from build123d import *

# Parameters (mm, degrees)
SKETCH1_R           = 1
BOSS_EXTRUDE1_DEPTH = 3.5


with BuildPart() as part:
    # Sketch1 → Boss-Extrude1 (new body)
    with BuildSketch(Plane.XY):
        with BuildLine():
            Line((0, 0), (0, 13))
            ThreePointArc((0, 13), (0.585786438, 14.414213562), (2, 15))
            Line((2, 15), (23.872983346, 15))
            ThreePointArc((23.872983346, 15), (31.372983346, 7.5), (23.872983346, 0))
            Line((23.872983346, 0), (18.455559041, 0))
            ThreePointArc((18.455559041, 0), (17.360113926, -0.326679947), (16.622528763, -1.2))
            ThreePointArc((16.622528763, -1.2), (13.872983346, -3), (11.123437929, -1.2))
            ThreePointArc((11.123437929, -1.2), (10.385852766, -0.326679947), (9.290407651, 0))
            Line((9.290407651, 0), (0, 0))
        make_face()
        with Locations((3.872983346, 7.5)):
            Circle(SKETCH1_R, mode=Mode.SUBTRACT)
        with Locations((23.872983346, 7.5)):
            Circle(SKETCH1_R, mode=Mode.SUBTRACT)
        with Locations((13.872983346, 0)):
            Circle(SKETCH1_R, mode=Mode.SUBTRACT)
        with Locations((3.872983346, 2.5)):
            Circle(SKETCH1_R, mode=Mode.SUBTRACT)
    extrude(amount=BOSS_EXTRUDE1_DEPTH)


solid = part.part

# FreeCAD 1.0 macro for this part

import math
import FreeCAD as App
import Part
import Sketcher
Q = App.Units.Quantity

doc = App.newDocument("Part")
body = doc.addObject("PartDesign::Body", "Body")

sketch1 = body.newObject("Sketcher::SketchObject", "Sketch")
sketch1.AttachmentSupport = (doc.getObject("XY_Plane"), [""])
sketch1.MapMode = "FlatFace"
sketch1.addGeometry([
    Part.LineSegment(App.Vector(0, 13, 0), App.Vector(0, 0, 0)),
    Part.LineSegment(App.Vector(0, 0, 0), App.Vector(9.3, 0, 0)),
    Part.ArcOfCircle(Part.Circle(App.Vector(9.3, -2, 0), App.Vector(0, 0, 1), 2), math.radians(24), math.radians(90)),
    Part.ArcOfCircle(Part.Circle(App.Vector(13.9, 0, 0), App.Vector(0, 0, 1), 3), math.radians(-156), math.radians(-24)),
    Part.ArcOfCircle(Part.Circle(App.Vector(18.5, -2, 0), App.Vector(0, 0, 1), 2), math.radians(90), math.radians(156)),
    Part.LineSegment(App.Vector(18.5, 0, 0), App.Vector(23.9, 0, 0)),
    Part.ArcOfCircle(Part.Circle(App.Vector(23.9, 7.5, 0), App.Vector(0, 0, 1), 7.5), math.radians(-90), math.radians(90)),
    Part.LineSegment(App.Vector(23.9, 15, 0), App.Vector(2, 15, 0)),
    Part.ArcOfCircle(Part.Circle(App.Vector(2, 13, 0), App.Vector(0, 0, 1), 2), math.radians(90), math.radians(180)),
    Part.Circle(App.Vector(13.9, 0, 0), App.Vector(0, 0, 1), 1),
    Part.Circle(App.Vector(3.9, 2.5, 0), App.Vector(0, 0, 1), 1),
    Part.Circle(App.Vector(23.9, 7.5, 0), App.Vector(0, 0, 1), 1),
    Part.Circle(App.Vector(3.9, 7.5, 0), App.Vector(0, 0, 1), 1),
], False)
sketch1.addConstraint([
    Sketcher.Constraint("Coincident", 0, 2, 1, 1),
    Sketcher.Constraint("Tangent", 1, 2, 2, 2),
    Sketcher.Constraint("Tangent", 2, 1, 3, 1),
    Sketcher.Constraint("Tangent", 3, 2, 4, 2),
    Sketcher.Constraint("Tangent", 4, 1, 5, 1),
    Sketcher.Constraint("Tangent", 5, 2, 6, 1),
    Sketcher.Constraint("Tangent", 6, 2, 7, 1),
    Sketcher.Constraint("Tangent", 7, 2, 8, 1),
    Sketcher.Constraint("Tangent", 8, 2, 0, 1),
    Sketcher.Constraint("Vertical", 0),
    Sketcher.Constraint("Horizontal", 1),
    Sketcher.Constraint("Horizontal", 5),
    Sketcher.Constraint("Horizontal", 7),
    Sketcher.Constraint("Coincident", 0, 2, -1, 1),
    Sketcher.Constraint("Coincident", 9, 3, 3, 3),
    Sketcher.Constraint("Coincident", 11, 3, 6, 3),
    Sketcher.Constraint("Equal", 2, 4),
    Sketcher.Constraint("Equal", 4, 8),
    Sketcher.Constraint("Equal", 9, 10),
    Sketcher.Constraint("Equal", 10, 11),
    Sketcher.Constraint("Equal", 11, 12),
    Sketcher.Constraint("PointOnObject", 3, 3, -1),
    Sketcher.Constraint("PointOnObject", 4, 1, -1),
    Sketcher.Constraint("Horizontal", 11, 3, 12, 3),
    Sketcher.Constraint("Vertical", 10, 3, 12, 3),
    Sketcher.Constraint("Diameter", 9, Q("2 mm")),
    Sketcher.Constraint("Radius", 2, Q("2 mm")),
    Sketcher.Constraint("Radius", 3, Q("3 mm")),
    Sketcher.Constraint("Radius", 6, Q("7.5 mm")),
    Sketcher.Constraint("DistanceX", 3, 3, 6, 3, Q("10 mm")),
    Sketcher.Constraint("DistanceX", 10, 3, 3, 3, Q("10 mm")),
    Sketcher.Constraint("DistanceY", 10, 3, 12, 3, Q("5 mm")),
    Sketcher.Constraint("DistanceX", 1, 1, 1, 2, Q("9.290408 mm")),
])
pad1 = body.newObject("PartDesign::Pad", "Pad")
pad1.Profile = sketch1
pad1.Length = 3.5

doc.recompute()
